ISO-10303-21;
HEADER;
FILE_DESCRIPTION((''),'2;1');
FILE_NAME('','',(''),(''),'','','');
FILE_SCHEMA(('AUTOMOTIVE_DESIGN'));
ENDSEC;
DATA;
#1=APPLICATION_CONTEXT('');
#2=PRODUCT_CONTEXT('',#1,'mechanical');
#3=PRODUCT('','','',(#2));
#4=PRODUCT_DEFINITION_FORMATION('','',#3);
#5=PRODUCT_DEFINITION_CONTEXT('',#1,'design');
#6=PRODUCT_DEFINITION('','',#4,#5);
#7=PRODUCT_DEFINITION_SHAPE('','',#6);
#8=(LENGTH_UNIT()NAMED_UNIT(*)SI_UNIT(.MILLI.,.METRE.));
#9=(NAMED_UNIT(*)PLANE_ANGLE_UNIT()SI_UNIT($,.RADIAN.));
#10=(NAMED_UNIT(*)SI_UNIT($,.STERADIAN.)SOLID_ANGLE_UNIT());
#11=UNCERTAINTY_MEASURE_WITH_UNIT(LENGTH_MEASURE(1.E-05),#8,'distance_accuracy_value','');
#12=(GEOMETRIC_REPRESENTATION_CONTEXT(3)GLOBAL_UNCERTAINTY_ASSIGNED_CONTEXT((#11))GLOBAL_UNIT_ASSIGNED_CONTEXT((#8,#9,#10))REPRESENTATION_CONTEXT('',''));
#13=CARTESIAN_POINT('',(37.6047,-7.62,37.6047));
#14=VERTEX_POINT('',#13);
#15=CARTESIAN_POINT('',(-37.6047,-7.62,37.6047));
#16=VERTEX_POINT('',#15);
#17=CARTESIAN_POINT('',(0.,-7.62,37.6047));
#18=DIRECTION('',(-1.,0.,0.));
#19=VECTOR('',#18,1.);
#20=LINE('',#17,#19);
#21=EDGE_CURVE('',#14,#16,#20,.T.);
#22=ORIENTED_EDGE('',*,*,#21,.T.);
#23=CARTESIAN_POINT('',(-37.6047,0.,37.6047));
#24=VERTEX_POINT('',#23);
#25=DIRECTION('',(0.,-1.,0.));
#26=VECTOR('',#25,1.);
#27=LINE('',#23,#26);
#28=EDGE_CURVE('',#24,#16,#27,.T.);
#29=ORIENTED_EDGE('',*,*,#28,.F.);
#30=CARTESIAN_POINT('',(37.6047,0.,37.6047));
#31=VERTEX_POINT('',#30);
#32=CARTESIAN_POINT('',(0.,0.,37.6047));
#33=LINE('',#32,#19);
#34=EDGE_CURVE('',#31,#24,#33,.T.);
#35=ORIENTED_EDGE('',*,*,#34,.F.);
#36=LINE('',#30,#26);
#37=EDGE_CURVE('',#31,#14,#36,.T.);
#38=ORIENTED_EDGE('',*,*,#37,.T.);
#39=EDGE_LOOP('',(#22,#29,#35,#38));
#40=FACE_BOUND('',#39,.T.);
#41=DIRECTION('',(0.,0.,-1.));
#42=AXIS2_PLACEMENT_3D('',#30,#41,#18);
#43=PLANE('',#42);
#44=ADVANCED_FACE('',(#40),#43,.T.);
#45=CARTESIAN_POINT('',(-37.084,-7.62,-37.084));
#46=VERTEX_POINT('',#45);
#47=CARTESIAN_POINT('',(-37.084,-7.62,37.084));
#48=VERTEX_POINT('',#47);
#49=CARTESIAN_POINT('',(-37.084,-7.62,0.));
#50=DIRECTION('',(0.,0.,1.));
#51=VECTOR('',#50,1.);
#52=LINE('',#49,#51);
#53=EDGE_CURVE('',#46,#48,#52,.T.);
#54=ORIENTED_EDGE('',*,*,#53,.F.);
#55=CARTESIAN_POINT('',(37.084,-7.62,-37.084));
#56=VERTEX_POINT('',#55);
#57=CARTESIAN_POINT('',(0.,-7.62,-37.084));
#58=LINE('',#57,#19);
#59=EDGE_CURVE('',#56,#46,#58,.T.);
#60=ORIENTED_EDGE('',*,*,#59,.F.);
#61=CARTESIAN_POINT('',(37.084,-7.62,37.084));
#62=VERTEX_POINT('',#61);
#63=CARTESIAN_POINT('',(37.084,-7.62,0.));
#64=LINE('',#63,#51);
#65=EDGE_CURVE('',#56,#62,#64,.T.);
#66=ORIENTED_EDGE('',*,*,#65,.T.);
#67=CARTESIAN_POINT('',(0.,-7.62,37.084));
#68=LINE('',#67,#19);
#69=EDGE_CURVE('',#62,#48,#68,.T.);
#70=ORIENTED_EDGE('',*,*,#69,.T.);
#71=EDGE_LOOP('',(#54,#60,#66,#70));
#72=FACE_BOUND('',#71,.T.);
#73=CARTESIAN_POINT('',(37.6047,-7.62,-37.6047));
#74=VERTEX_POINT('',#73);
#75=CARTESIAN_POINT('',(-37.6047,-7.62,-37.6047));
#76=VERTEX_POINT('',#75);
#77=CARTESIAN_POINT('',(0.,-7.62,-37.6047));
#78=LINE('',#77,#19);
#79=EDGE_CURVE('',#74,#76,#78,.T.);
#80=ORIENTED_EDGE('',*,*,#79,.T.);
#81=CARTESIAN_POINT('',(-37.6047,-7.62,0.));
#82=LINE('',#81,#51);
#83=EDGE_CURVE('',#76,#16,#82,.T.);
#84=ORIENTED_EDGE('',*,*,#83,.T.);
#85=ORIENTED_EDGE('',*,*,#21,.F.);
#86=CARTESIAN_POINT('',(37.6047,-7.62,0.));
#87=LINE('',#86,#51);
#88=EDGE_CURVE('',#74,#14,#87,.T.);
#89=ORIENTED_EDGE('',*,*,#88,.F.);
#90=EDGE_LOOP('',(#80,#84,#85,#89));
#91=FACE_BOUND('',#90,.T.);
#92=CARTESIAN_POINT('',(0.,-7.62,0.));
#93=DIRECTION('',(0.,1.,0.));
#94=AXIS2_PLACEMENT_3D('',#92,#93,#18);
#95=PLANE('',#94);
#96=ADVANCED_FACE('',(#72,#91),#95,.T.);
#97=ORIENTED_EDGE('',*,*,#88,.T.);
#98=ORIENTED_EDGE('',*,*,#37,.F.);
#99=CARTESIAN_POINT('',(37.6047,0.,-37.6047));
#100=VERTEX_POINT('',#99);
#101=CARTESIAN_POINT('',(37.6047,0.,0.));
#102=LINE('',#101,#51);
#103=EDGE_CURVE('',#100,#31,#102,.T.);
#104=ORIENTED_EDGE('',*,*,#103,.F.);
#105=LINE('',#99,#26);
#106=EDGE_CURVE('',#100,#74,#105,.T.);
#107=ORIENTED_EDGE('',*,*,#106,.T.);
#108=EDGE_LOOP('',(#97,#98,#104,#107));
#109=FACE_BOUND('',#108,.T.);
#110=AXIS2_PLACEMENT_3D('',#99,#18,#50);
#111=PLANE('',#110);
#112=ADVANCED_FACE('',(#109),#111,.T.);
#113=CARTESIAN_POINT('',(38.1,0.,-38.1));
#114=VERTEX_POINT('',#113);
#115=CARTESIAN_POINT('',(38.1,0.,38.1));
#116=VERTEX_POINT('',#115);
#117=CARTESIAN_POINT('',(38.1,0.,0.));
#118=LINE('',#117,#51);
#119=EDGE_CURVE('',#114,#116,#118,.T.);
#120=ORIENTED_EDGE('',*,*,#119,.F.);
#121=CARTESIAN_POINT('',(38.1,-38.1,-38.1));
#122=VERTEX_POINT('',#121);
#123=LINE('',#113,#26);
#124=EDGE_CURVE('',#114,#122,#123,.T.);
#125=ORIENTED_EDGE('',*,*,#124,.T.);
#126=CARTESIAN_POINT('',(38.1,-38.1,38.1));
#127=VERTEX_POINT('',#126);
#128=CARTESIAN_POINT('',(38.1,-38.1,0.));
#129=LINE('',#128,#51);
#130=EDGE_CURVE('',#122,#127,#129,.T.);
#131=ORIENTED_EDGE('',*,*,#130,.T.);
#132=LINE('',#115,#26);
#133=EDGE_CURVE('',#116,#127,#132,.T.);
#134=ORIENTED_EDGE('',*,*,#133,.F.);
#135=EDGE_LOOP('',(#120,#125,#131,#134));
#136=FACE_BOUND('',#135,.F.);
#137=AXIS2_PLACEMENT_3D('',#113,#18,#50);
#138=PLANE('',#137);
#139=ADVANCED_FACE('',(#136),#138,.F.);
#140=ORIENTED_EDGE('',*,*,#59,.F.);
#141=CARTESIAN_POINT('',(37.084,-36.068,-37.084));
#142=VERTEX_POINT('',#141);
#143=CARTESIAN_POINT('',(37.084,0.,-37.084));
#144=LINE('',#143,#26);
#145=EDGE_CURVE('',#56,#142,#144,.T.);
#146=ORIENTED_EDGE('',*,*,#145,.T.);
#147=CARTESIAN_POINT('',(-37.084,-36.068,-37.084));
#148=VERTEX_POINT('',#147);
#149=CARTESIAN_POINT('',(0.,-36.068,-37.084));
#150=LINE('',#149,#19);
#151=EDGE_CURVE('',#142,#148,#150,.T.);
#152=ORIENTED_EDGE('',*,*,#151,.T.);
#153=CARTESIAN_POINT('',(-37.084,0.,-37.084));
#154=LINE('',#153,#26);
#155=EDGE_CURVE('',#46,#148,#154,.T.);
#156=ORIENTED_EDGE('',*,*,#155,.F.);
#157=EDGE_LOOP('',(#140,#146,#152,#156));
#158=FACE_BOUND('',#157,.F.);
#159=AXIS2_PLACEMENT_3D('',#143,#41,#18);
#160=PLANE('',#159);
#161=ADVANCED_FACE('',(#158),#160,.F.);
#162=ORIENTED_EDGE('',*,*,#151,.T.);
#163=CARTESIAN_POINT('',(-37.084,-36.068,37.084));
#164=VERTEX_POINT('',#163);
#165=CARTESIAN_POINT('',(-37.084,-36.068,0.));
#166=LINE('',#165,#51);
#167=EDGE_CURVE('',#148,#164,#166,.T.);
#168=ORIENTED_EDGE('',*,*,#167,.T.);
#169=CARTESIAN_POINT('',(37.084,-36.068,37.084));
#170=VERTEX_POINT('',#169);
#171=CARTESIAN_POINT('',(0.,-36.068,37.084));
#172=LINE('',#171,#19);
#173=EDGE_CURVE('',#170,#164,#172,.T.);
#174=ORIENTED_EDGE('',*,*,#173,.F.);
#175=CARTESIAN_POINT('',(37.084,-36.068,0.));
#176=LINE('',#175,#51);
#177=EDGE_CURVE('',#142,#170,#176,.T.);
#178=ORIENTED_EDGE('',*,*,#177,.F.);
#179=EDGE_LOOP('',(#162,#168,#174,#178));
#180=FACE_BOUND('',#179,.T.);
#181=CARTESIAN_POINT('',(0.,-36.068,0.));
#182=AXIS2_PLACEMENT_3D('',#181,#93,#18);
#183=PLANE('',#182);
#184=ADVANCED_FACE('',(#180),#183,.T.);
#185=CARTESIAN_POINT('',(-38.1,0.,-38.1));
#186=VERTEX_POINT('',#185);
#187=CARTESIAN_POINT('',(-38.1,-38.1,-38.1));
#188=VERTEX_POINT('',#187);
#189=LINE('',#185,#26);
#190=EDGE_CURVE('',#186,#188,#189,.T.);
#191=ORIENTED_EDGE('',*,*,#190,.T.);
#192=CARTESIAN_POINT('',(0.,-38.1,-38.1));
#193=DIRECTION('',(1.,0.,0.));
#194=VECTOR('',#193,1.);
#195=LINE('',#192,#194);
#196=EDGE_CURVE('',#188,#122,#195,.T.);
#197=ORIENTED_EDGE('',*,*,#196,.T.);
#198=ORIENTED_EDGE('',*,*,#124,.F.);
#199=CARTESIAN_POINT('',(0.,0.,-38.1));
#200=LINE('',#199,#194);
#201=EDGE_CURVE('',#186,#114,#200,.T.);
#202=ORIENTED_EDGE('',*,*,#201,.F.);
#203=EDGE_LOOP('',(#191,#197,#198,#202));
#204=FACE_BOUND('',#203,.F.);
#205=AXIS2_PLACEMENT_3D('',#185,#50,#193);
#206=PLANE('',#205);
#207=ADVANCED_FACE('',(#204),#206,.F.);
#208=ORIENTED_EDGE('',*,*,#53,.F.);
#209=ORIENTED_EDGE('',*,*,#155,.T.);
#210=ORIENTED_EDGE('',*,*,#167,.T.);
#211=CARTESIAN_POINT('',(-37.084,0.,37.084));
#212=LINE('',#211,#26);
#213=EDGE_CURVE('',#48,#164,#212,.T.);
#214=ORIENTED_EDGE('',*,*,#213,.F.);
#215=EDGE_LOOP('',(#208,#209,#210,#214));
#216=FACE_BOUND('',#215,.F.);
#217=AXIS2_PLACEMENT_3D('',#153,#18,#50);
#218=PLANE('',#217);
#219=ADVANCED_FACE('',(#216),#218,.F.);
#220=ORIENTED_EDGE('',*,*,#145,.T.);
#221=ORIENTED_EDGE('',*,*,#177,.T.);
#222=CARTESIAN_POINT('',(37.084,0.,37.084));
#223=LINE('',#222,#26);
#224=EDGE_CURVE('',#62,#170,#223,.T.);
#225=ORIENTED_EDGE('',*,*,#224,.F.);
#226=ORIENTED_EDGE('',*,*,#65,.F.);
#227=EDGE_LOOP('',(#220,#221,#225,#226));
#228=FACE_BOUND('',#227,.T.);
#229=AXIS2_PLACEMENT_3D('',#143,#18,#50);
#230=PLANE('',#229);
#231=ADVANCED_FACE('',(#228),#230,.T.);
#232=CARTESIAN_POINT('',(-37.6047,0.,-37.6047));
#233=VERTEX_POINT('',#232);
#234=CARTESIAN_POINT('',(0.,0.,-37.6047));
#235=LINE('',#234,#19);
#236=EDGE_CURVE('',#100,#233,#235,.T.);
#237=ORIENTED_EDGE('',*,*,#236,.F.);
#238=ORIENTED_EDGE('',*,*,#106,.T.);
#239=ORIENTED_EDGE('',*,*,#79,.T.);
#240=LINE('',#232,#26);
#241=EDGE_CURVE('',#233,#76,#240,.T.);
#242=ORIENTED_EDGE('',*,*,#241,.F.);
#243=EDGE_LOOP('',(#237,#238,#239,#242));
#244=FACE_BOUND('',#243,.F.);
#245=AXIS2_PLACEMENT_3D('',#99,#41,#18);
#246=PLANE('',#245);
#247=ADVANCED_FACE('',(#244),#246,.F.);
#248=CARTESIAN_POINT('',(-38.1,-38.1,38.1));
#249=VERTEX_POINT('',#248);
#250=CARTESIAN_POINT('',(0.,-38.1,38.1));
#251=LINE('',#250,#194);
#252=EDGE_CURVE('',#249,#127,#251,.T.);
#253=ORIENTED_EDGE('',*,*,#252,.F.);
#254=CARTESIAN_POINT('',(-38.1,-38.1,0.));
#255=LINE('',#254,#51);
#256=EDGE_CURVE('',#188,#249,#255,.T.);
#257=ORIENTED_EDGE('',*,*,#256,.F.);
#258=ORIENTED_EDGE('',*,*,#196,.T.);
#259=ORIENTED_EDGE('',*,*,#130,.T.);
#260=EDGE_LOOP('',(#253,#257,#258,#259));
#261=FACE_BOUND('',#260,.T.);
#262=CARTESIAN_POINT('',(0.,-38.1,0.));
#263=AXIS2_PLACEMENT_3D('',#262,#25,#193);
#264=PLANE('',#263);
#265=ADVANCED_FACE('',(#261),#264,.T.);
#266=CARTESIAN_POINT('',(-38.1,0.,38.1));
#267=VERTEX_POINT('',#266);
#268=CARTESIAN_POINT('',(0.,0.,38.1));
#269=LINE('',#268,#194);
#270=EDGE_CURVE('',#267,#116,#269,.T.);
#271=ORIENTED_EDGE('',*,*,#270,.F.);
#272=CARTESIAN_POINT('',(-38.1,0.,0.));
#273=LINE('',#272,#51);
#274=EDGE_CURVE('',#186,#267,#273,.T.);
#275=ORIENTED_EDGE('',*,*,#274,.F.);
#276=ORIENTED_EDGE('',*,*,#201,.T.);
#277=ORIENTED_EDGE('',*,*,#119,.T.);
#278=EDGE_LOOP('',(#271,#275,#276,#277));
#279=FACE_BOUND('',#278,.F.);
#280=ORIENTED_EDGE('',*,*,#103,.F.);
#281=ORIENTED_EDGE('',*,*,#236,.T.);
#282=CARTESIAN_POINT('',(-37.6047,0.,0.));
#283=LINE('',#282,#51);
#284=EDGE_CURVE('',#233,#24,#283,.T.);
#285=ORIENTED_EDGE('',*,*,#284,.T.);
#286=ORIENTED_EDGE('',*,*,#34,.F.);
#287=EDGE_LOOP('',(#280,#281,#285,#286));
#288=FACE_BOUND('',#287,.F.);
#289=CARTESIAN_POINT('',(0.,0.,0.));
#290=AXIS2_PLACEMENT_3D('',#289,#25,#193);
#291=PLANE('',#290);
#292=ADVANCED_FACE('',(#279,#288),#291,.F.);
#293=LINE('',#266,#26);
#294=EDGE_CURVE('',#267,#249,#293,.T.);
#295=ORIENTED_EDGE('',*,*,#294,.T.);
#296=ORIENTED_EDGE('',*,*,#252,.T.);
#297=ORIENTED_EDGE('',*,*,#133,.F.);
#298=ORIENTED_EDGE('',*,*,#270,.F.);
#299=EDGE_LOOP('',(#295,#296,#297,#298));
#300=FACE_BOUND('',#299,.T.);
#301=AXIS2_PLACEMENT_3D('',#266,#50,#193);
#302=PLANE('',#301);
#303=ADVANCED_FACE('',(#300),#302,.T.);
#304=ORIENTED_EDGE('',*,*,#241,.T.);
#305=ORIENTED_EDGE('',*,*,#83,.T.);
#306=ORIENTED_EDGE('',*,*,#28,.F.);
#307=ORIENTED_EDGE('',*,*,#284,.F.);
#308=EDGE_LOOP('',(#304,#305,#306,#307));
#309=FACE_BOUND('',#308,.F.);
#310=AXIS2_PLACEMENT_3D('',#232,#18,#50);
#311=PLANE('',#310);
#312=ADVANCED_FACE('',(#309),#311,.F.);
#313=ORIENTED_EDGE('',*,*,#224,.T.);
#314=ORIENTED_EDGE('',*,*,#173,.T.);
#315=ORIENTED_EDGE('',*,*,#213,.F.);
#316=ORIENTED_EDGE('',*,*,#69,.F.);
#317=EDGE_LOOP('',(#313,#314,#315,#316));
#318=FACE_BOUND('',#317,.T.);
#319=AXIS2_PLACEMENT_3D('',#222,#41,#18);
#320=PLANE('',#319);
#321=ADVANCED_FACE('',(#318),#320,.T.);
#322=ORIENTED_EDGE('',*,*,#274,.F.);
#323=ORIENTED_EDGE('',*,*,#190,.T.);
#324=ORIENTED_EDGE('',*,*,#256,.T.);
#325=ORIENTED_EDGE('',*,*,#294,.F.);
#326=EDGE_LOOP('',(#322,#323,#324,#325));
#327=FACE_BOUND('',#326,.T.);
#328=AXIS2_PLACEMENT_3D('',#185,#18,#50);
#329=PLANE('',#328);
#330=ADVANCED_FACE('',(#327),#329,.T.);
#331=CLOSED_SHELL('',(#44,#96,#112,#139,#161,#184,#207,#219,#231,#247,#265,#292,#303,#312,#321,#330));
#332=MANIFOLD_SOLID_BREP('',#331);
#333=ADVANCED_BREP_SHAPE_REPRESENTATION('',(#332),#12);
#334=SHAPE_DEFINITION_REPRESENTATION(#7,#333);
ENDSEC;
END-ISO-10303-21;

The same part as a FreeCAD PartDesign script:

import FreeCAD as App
import Part
import Sketcher
Q = App.Units.Quantity

doc = App.newDocument("Part")
params = doc.addObject("Spreadsheet::Sheet", "Params")
for row, (alias, value) in enumerate([
    ("sketch1_width", "3 in"),
    ("pad1_length", "1.5 in"),
    ("sketch2_width", "2.92 in"),
    ("pocket1_length", "1.42 in"),
    ("sketch3_width", "2.92 in"),
    ("sketch3_width2", "2.961 in"),
    ("pocket2_length", "0.3 in"),
], start=1):
    params.set(f"A{row}", alias)
    params.set(f"B{row}", "=" + value)
    params.setAlias(f"B{row}", alias)

body = doc.addObject("PartDesign::Body", "Body")

sketch1 = body.newObject("Sketcher::SketchObject", "Sketch")
sketch1.AttachmentSupport = (doc.getObject("XZ_Plane"), [""])
sketch1.MapMode = "FlatFace"
sketch1.addGeometry(Part.LineSegment(App.Vector(-38, 38, 0), App.Vector(-38, -38, 0)), False)
sketch1.addGeometry(Part.LineSegment(App.Vector(-38, -38, 0), App.Vector(38, -38, 0)), False)
sketch1.addGeometry(Part.LineSegment(App.Vector(38, -38, 0), App.Vector(38, 38, 0)), False)
sketch1.addGeometry(Part.LineSegment(App.Vector(38, 38, 0), App.Vector(-38, 38, 0)), False)
sketch1.addConstraint(Sketcher.Constraint("Coincident", 0, 2, 1, 1))
sketch1.addConstraint(Sketcher.Constraint("Coincident", 1, 2, 2, 1))
sketch1.addConstraint(Sketcher.Constraint("Coincident", 2, 2, 3, 1))
sketch1.addConstraint(Sketcher.Constraint("Coincident", 3, 2, 0, 1))
sketch1.addConstraint(Sketcher.Constraint("Vertical", 0))
sketch1.addConstraint(Sketcher.Constraint("Horizontal", 1))
sketch1.addConstraint(Sketcher.Constraint("Vertical", 2))
sketch1.addConstraint(Sketcher.Constraint("Horizontal", 3))
sketch1.addConstraint(Sketcher.Constraint("Symmetric", 0, 2, 2, 2, -1, 1))
sketch1.addConstraint(Sketcher.Constraint("Equal", 3, 0))
sketch1.addConstraint(Sketcher.Constraint("DistanceX", 1, 1, 1, 2, Q("3 in")))
sketch1.setExpression("Constraints[10]", "Params.sketch1_width")
pad1 = body.newObject("PartDesign::Pad", "Pad")
pad1.Profile = sketch1
pad1.setExpression("Length", "Params.pad1_length")

sketch2 = body.newObject("Sketcher::SketchObject", "Sketch001")
sketch2.AttachmentSupport = (doc.getObject("XZ_Plane"), [""])
sketch2.MapMode = "FlatFace"
sketch2.addGeometry(Part.LineSegment(App.Vector(37, 37, 0), App.Vector(37, -37, 0)), False)
sketch2.addGeometry(Part.LineSegment(App.Vector(37, -37, 0), App.Vector(-37, -37, 0)), False)
sketch2.addGeometry(Part.LineSegment(App.Vector(-37, -37, 0), App.Vector(-37, 37, 0)), False)
sketch2.addGeometry(Part.LineSegment(App.Vector(-37, 37, 0), App.Vector(37, 37, 0)), False)
sketch2.addConstraint(Sketcher.Constraint("Coincident", 0, 2, 1, 1))
sketch2.addConstraint(Sketcher.Constraint("Coincident", 1, 2, 2, 1))
sketch2.addConstraint(Sketcher.Constraint("Coincident", 2, 2, 3, 1))
sketch2.addConstraint(Sketcher.Constraint("Coincident", 3, 2, 0, 1))
sketch2.addConstraint(Sketcher.Constraint("Vertical", 0))
sketch2.addConstraint(Sketcher.Constraint("Horizontal", 1))
sketch2.addConstraint(Sketcher.Constraint("Vertical", 2))
sketch2.addConstraint(Sketcher.Constraint("Horizontal", 3))
sketch2.addConstraint(Sketcher.Constraint("Symmetric", 0, 2, 2, 2, -1, 1))
sketch2.addConstraint(Sketcher.Constraint("Equal", 3, 0))
sketch2.addConstraint(Sketcher.Constraint("DistanceX", 1, 2, 1, 1, Q("2.92 in")))
sketch2.setExpression("Constraints[10]", "Params.sketch2_width")
pocket1 = body.newObject("PartDesign::Pocket", "Pocket")
pocket1.Profile = sketch2
pocket1.setExpression("Length", "Params.pocket1_length")
pocket1.Reversed = True

sketch3 = body.newObject("Sketcher::SketchObject", "Sketch002")
sketch3.AttachmentSupport = (doc.getObject("XZ_Plane"), [""])
sketch3.MapMode = "FlatFace"
sketch3.addGeometry(Part.LineSegment(App.Vector(38, 38, 0), App.Vector(38, -38, 0)), False)
sketch3.addGeometry(Part.LineSegment(App.Vector(38, -38, 0), App.Vector(-38, -38, 0)), False)
sketch3.addGeometry(Part.LineSegment(App.Vector(-38, -38, 0), App.Vector(-38, 38, 0)), False)
sketch3.addGeometry(Part.LineSegment(App.Vector(-38, 38, 0), App.Vector(38, 38, 0)), False)
sketch3.addGeometry(Part.LineSegment(App.Vector(-37, -37, 0), App.Vector(37, -37, 0)), False)
sketch3.addGeometry(Part.LineSegment(App.Vector(37, -37, 0), App.Vector(37, 37, 0)), False)
sketch3.addGeometry(Part.LineSegment(App.Vector(37, 37, 0), App.Vector(-37, 37, 0)), False)
sketch3.addGeometry(Part.LineSegment(App.Vector(-37, 37, 0), App.Vector(-37, -37, 0)), False)
sketch3.addConstraint(Sketcher.Constraint("Coincident", 0, 2, 1, 1))
sketch3.addConstraint(Sketcher.Constraint("Coincident", 1, 2, 2, 1))
sketch3.addConstraint(Sketcher.Constraint("Coincident", 2, 2, 3, 1))
sketch3.addConstraint(Sketcher.Constraint("Coincident", 3, 2, 0, 1))
sketch3.addConstraint(Sketcher.Constraint("Coincident", 4, 2, 5, 1))
sketch3.addConstraint(Sketcher.Constraint("Coincident", 5, 2, 6, 1))
sketch3.addConstraint(Sketcher.Constraint("Coincident", 6, 2, 7, 1))
sketch3.addConstraint(Sketcher.Constraint("Coincident", 7, 2, 4, 1))
sketch3.addConstraint(Sketcher.Constraint("Vertical", 0))
sketch3.addConstraint(Sketcher.Constraint("Horizontal", 1))
sketch3.addConstraint(Sketcher.Constraint("Vertical", 2))
sketch3.addConstraint(Sketcher.Constraint("Horizontal", 3))
sketch3.addConstraint(Sketcher.Constraint("Horizontal", 4))
sketch3.addConstraint(Sketcher.Constraint("Vertical", 5))
sketch3.addConstraint(Sketcher.Constraint("Horizontal", 6))
sketch3.addConstraint(Sketcher.Constraint("Vertical", 7))
sketch3.addConstraint(Sketcher.Constraint("Symmetric", 0, 2, 2, 2, -1, 1))
sketch3.addConstraint(Sketcher.Constraint("Symmetric", 4, 2, 6, 2, -1, 1))
sketch3.addConstraint(Sketcher.Constraint("Equal", 3, 0))
sketch3.addConstraint(Sketcher.Constraint("Equal", 6, 5))
sketch3.addConstraint(Sketcher.Constraint("DistanceX", 4, 1, 4, 2, Q("2.92 in")))
sketch3.addConstraint(Sketcher.Constraint("DistanceX", 1, 2, 1, 1, Q("2.961 in")))
sketch3.setExpression("Constraints[20]", "Params.sketch3_width")
sketch3.setExpression("Constraints[21]", "Params.sketch3_width2")
pocket2 = body.newObject("PartDesign::Pocket", "Pocket001")
pocket2.Profile = sketch3
pocket2.setExpression("Length", "Params.pocket2_length")
pocket2.Reversed = True

doc.recompute()
